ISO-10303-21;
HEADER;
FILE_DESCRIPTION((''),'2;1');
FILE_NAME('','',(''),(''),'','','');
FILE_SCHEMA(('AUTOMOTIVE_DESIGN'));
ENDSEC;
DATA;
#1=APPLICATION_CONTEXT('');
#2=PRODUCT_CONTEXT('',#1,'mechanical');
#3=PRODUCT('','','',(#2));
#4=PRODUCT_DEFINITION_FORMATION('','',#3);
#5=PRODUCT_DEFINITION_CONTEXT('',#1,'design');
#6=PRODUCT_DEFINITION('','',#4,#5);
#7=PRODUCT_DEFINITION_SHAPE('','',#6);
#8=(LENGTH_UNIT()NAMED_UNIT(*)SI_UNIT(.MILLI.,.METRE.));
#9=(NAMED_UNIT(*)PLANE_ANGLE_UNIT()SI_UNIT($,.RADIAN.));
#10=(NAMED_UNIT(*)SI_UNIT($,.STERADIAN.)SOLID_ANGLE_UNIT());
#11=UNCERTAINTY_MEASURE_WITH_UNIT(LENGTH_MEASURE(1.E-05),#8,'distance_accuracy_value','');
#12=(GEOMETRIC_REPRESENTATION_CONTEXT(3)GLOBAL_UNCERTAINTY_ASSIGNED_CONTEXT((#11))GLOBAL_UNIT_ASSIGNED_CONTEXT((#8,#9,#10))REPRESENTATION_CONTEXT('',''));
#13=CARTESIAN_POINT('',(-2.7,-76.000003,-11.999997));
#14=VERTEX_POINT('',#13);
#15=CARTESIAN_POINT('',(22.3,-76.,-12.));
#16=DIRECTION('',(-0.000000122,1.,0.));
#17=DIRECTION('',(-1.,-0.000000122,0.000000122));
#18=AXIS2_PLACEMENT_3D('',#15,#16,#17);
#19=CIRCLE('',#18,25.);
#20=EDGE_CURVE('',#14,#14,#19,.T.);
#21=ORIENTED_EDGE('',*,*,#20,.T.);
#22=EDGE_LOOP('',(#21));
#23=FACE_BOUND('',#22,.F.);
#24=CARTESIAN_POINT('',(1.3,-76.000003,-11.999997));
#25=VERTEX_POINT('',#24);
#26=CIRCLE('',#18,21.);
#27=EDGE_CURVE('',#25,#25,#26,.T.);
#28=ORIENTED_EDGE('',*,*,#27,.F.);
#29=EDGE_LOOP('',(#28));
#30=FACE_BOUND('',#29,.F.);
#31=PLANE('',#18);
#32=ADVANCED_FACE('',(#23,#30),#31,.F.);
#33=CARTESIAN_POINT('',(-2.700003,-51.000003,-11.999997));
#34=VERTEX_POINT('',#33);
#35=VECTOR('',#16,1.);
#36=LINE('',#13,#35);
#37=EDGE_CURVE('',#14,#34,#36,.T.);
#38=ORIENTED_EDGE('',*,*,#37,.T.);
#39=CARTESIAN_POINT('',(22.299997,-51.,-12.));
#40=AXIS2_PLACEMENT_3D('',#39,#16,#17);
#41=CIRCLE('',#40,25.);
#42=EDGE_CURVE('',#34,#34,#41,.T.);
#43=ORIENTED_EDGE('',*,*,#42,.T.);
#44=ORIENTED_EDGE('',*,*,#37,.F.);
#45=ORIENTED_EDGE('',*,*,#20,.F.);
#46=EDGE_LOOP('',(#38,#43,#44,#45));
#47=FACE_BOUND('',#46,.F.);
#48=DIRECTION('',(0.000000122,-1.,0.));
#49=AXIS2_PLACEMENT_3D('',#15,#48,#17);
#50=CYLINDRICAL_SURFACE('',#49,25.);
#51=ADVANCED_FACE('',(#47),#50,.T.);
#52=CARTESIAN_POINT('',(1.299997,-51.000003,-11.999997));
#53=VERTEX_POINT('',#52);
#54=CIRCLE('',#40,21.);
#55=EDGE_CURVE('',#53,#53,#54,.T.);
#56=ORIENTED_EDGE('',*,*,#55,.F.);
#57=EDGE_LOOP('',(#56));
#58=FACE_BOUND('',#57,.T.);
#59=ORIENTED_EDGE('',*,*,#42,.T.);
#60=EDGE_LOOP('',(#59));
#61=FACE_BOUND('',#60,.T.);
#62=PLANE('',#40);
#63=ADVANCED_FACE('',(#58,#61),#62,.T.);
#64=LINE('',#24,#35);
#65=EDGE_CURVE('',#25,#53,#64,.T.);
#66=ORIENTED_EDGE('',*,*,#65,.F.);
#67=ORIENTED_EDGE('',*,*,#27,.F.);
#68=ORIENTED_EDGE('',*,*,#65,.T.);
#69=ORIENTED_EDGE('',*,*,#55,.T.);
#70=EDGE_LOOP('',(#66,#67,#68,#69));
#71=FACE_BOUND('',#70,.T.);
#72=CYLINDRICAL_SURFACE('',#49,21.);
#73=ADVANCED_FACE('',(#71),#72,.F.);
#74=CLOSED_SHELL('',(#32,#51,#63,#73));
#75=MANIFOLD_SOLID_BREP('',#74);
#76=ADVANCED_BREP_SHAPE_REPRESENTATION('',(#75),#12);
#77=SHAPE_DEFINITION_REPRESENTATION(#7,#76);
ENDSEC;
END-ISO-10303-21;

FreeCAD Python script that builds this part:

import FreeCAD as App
import Part
import Sketcher
from FreeCAD import Vector
Q = App.Units.Quantity

doc = App.newDocument("Part")
body = doc.addObject("PartDesign::Body", "Body")

# Sketch on XY plane
sketch1 = body.newObject("Sketcher::SketchObject", "Sketch")
sketch1.AttachmentSupport = (doc.getObject("XY_Plane"), [""])
sketch1.MapMode = "FlatFace"
sketch1.addGeometry(Part.Circle(Vector(0, 0, 0), Vector(0, 0, 1), 21), False)
sketch1.addConstraint([
    Sketcher.Constraint("Coincident", 0, 3, -1, 1),
    Sketcher.Constraint("Diameter", 0, Q("42 mm")),
])
pad1 = body.newObject("PartDesign::Pad", "Pad")
pad1.Profile = sketch1
pad1.Length = 25
body2 = doc.addObject("PartDesign::Body", "Body001")

# Sketch on XY plane
sketch2 = body2.newObject("Sketcher::SketchObject", "Sketch001")
sketch2.AttachmentSupport = (doc.getObject("XY_Plane001"), [""])
sketch2.MapMode = "FlatFace"
sketch2.addGeometry(Part.Circle(Vector(0, 0, 0), Vector(0, 0, 1), 25), False)
sketch2.addConstraint([
    Sketcher.Constraint("Coincident", 0, 3, -1, 1),
    Sketcher.Constraint("Diameter", 0, Q("50 mm")),
])
pad2 = body2.newObject("PartDesign::Pad", "Pad001")
pad2.Profile = sketch2
pad2.Length = 25
doc.recompute()

boolean = body2.newObject("PartDesign::Boolean", "Boolean")
boolean.Type = "Cut"
boolean.addObjects([body])
body3 = doc.addObject("PartDesign::Body", "Body002")
doc.recompute()

body2.Placement = App.Placement(Vector(0, 0, 0), App.Rotation(Vector(1, 0, 0), 90))
boolean2 = body3.newObject("PartDesign::Boolean", "Boolean001")
boolean2.Type = "Fuse"
boolean2.addObjects([body2])
body4 = doc.addObject("PartDesign::Body", "Body003")
doc.recompute()

body3.Placement = App.Placement(Vector(0, 0, 0), App.Rotation(Vector(0, 1, 0), 359.999993))
boolean3 = body4.newObject("PartDesign::Boolean", "Boolean002")
boolean3.Type = "Fuse"
boolean3.addObjects([body3])
body5 = doc.addObject("PartDesign::Body", "Body004")
doc.recompute()

body4.Placement = App.Placement(Vector(22.3, -76, -12), App.Rotation(Vector(0, 0, 1), 180.000007))
boolean4 = body5.newObject("PartDesign::Boolean", "Boolean003")
boolean4.Type = "Fuse"
boolean4.addObjects([body4])

doc.recompute()
